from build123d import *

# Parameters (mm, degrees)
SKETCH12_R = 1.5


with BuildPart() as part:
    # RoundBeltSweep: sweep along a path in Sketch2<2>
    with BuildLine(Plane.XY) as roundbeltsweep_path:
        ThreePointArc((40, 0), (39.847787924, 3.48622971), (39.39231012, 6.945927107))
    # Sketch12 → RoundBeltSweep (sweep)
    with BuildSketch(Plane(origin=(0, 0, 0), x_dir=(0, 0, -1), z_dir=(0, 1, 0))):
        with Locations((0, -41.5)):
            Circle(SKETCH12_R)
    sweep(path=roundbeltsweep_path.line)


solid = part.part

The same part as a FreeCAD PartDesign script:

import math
import FreeCAD as App
import Part
import Sketcher

V = App.Vector
Q = App.Units.Quantity

doc = App.newDocument("Part")
body = doc.addObject("PartDesign::Body", "Body")

# Sketch on XZ plane
sketch1 = body.newObject("Sketcher::SketchObject", "Sketch")
sketch1.AttachmentSupport = (doc.getObject("XZ_Plane"), [""])
sketch1.MapMode = "FlatFace"
sketch1.addGeometry(Part.Circle(V(41.5, 0, 0), V(0, 0, 1), 1.5), False)
sketch1.addConstraint([
    Sketcher.Constraint("PointOnObject", 0, 3, -1),
    Sketcher.Constraint("Diameter", 0, Q("3 mm")),
    Sketcher.Constraint("DistanceX", -1, 1, 0, 3, Q("41.5 mm")),
])

# Sketch on XY plane
sketch2 = body.newObject("Sketcher::SketchObject", "Sketch001")
sketch2.AttachmentSupport = (doc.getObject("XY_Plane"), [""])
sketch2.MapMode = "FlatFace"
sketch2.addGeometry(Part.ArcOfCircle(Part.Circle(V(0, 0, 0), V(0, 0, 1), 40), math.radians(0), math.radians(10)), False)
sketch2.addConstraint([
    Sketcher.Constraint("Coincident", 0, 3, -1, 1),
    Sketcher.Constraint("PointOnObject", 0, 1, -1),
    Sketcher.Constraint("Radius", 0, Q("40 mm")),
    Sketcher.Constraint("DistanceX", -1, 1, 0, 2, Q("39.39231 mm")),
])
doc.recompute()

additivepipe = body.newObject("PartDesign::AdditivePipe", "AdditivePipe")
additivepipe.Profile = sketch1
additivepipe.Spine = (sketch2, ["Edge1"])

doc.recompute()
